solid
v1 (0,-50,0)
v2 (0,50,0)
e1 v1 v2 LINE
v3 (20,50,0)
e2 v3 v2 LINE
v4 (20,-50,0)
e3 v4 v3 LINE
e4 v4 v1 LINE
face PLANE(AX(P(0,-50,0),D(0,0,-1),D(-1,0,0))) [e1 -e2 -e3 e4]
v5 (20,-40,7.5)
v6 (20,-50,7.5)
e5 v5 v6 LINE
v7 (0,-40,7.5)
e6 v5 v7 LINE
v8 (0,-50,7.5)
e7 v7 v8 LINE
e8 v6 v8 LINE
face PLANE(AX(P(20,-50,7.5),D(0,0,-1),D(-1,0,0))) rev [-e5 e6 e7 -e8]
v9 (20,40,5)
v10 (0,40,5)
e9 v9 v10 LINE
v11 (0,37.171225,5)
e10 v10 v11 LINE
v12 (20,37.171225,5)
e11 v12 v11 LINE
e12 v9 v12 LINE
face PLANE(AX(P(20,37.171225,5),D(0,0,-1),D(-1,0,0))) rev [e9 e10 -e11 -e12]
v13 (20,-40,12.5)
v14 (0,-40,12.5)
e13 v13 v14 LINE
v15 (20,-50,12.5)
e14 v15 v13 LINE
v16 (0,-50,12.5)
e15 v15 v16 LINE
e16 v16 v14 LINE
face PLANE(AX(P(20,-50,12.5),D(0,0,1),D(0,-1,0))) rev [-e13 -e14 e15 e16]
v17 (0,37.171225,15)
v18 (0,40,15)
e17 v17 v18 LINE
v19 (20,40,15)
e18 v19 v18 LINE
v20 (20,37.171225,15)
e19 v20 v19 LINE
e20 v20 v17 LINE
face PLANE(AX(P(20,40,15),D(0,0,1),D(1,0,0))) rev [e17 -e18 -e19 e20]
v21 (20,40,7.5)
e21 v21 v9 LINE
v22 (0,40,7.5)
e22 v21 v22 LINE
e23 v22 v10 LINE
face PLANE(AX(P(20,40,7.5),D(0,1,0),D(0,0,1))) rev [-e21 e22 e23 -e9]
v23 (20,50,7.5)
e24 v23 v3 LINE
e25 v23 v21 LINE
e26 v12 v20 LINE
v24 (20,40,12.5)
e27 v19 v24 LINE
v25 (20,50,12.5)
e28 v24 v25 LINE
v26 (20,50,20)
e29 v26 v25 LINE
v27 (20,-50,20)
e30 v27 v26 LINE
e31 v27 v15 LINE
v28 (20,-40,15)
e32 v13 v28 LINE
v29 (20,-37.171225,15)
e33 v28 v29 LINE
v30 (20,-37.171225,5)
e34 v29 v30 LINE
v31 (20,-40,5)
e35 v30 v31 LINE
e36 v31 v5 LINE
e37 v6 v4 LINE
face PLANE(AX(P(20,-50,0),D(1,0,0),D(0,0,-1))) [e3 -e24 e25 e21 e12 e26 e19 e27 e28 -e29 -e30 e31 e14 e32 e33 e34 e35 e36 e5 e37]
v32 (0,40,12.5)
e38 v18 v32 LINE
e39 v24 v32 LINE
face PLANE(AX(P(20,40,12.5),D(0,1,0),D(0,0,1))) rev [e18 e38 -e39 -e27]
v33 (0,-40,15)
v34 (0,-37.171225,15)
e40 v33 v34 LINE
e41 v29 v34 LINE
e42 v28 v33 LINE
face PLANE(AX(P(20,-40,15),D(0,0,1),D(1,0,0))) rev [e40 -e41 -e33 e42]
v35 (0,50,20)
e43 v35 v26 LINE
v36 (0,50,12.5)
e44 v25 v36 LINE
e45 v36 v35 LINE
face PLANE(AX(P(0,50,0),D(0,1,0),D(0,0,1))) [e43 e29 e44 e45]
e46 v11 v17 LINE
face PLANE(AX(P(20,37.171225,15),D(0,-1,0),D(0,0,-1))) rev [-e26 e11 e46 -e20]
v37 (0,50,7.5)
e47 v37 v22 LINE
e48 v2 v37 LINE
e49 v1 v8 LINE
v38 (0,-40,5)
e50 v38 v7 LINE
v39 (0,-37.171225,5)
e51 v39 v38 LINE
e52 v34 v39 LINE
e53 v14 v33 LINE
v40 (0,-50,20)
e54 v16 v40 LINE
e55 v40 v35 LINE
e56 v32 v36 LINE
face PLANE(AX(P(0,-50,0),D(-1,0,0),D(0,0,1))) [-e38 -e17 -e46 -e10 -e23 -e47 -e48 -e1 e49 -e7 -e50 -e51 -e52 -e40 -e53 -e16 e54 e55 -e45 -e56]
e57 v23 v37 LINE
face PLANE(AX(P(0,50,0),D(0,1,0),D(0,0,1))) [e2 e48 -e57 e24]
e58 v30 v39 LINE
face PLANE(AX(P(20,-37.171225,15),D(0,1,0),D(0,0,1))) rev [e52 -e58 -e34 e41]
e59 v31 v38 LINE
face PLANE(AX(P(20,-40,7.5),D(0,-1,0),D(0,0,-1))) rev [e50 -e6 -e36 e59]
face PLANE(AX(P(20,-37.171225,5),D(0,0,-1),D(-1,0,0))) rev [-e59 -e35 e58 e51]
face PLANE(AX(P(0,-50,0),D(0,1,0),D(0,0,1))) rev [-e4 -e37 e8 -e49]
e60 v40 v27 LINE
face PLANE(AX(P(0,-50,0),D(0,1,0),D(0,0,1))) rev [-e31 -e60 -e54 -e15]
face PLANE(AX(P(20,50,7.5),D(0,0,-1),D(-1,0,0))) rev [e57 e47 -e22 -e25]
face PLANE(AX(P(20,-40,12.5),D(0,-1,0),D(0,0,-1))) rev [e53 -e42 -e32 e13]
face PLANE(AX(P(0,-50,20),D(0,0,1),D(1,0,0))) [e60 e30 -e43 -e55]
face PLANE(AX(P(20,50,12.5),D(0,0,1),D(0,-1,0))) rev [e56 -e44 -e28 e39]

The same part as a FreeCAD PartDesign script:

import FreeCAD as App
import Part
import Sketcher
Q = App.Units.Quantity

doc = App.newDocument("Part")
body = doc.addObject("PartDesign::Body", "Body")

# Sketch on XZ plane
sketch1 = body.newObject("Sketcher::SketchObject", "Sketch")
sketch1.AttachmentSupport = (doc.getObject("XZ_Plane"), [""])
sketch1.MapMode = "FlatFace"
sketch1.addGeometry(Part.LineSegment(App.Vector(0, 0, 0), App.Vector(0, 20, 0)), False)
sketch1.addGeometry(Part.LineSegment(App.Vector(0, 20, 0), App.Vector(20, 20, 0)), False)
sketch1.addGeometry(Part.LineSegment(App.Vector(20, 20, 0), App.Vector(20, 0, 0)), False)
sketch1.addGeometry(Part.LineSegment(App.Vector(20, 0, 0), App.Vector(0, 0, 0)), False)
sketch1.addConstraint(Sketcher.Constraint("Coincident", 0, 2, 1, 1))
sketch1.addConstraint(Sketcher.Constraint("Coincident", 1, 2, 2, 1))
sketch1.addConstraint(Sketcher.Constraint("Coincident", 2, 2, 3, 1))
sketch1.addConstraint(Sketcher.Constraint("Coincident", 3, 2, 0, 1))
sketch1.addConstraint(Sketcher.Constraint("Vertical", 0))
sketch1.addConstraint(Sketcher.Constraint("Horizontal", 1))
sketch1.addConstraint(Sketcher.Constraint("Vertical", 2))
sketch1.addConstraint(Sketcher.Constraint("Horizontal", 3))
sketch1.addConstraint(Sketcher.Constraint("Coincident", 3, 2, -1, 1))
sketch1.addConstraint(Sketcher.Constraint("Equal", 3, 0))
sketch1.addConstraint(Sketcher.Constraint("DistanceX", 1, 1, 1, 2, Q("20 mm")))
pad1 = body.newObject("PartDesign::Pad", "Pad")
pad1.Profile = sketch1
pad1.Type = "TwoLengths"
pad1.Length = 50
pad1.Length2 = 50
pad1.Reversed = True

# Sketch on YZ plane
sketch2 = body.newObject("Sketcher::SketchObject", "Sketch001")
sketch2.AttachmentSupport = (doc.getObject("YZ_Plane"), [""])
sketch2.MapMode = "FlatFace"
sketch2.addGeometry(Part.LineSegment(App.Vector(40, 7.5, 0), App.Vector(40, 5, 0)), False)
sketch2.addGeometry(Part.LineSegment(App.Vector(40, 5, 0), App.Vector(37.2, 5, 0)), False)
sketch2.addGeometry(Part.LineSegment(App.Vector(37.2, 5, 0), App.Vector(37.2, 15, 0)), False)
sketch2.addGeometry(Part.LineSegment(App.Vector(37.2, 15, 0), App.Vector(40, 15, 0)), False)
sketch2.addGeometry(Part.LineSegment(App.Vector(40, 15, 0), App.Vector(40, 12.5, 0)), False)
sketch2.addGeometry(Part.LineSegment(App.Vector(40, 12.5, 0), App.Vector(50, 12.5, 0)), False)
sketch2.addGeometry(Part.LineSegment(App.Vector(50, 12.5, 0), App.Vector(50, 7.5, 0)), False)
sketch2.addGeometry(Part.LineSegment(App.Vector(50, 7.5, 0), App.Vector(40, 7.5, 0)), False)
sketch2.addGeometry(Part.LineSegment(App.Vector(-37.2, 5, 0), App.Vector(-40, 5, 0)), False)
sketch2.addGeometry(Part.LineSegment(App.Vector(-40, 5, 0), App.Vector(-40, 7.5, 0)), False)
sketch2.addGeometry(Part.LineSegment(App.Vector(-40, 7.5, 0), App.Vector(-50, 7.5, 0)), False)
sketch2.addGeometry(Part.LineSegment(App.Vector(-50, 7.5, 0), App.Vector(-50, 12.5, 0)), False)
sketch2.addGeometry(Part.LineSegment(App.Vector(-50, 12.5, 0), App.Vector(-40, 12.5, 0)), False)
sketch2.addGeometry(Part.LineSegment(App.Vector(-40, 12.5, 0), App.Vector(-40, 15, 0)), False)
sketch2.addGeometry(Part.LineSegment(App.Vector(-40, 15, 0), App.Vector(-37.2, 15, 0)), False)
sketch2.addGeometry(Part.LineSegment(App.Vector(-37.2, 15, 0), App.Vector(-37.2, 5, 0)), False)
sketch2.addConstraint(Sketcher.Constraint("Coincident", 0, 2, 1, 1))
sketch2.addConstraint(Sketcher.Constraint("Coincident", 1, 2, 2, 1))
sketch2.addConstraint(Sketcher.Constraint("Coincident", 2, 2, 3, 1))
sketch2.addConstraint(Sketcher.Constraint("Coincident", 3, 2, 4, 1))
sketch2.addConstraint(Sketcher.Constraint("Coincident", 4, 2, 5, 1))
sketch2.addConstraint(Sketcher.Constraint("Coincident", 5, 2, 6, 1))
sketch2.addConstraint(Sketcher.Constraint("Coincident", 6, 2, 7, 1))
sketch2.addConstraint(Sketcher.Constraint("Coincident", 7, 2, 0, 1))
sketch2.addConstraint(Sketcher.Constraint("Coincident", 8, 2, 9, 1))
sketch2.addConstraint(Sketcher.Constraint("Coincident", 9, 2, 10, 1))
sketch2.addConstraint(Sketcher.Constraint("Coincident", 10, 2, 11, 1))
sketch2.addConstraint(Sketcher.Constraint("Coincident", 11, 2, 12, 1))
sketch2.addConstraint(Sketcher.Constraint("Coincident", 12, 2, 13, 1))
sketch2.addConstraint(Sketcher.Constraint("Coincident", 13, 2, 14, 1))
sketch2.addConstraint(Sketcher.Constraint("Coincident", 14, 2, 15, 1))
sketch2.addConstraint(Sketcher.Constraint("Coincident", 15, 2, 8, 1))
sketch2.addConstraint(Sketcher.Constraint("Vertical", 0))
sketch2.addConstraint(Sketcher.Constraint("Horizontal", 1))
sketch2.addConstraint(Sketcher.Constraint("Vertical", 2))
sketch2.addConstraint(Sketcher.Constraint("Horizontal", 3))
sketch2.addConstraint(Sketcher.Constraint("Vertical", 4))
sketch2.addConstraint(Sketcher.Constraint("Horizontal", 5))
sketch2.addConstraint(Sketcher.Constraint("Vertical", 6))
sketch2.addConstraint(Sketcher.Constraint("Horizontal", 7))
sketch2.addConstraint(Sketcher.Constraint("Horizontal", 8))
sketch2.addConstraint(Sketcher.Constraint("Vertical", 9))
sketch2.addConstraint(Sketcher.Constraint("Horizontal", 10))
sketch2.addConstraint(Sketcher.Constraint("Vertical", 11))
sketch2.addConstraint(Sketcher.Constraint("Horizontal", 12))
sketch2.addConstraint(Sketcher.Constraint("Vertical", 13))
sketch2.addConstraint(Sketcher.Constraint("Horizontal", 14))
sketch2.addConstraint(Sketcher.Constraint("Vertical", 15))
sketch2.addConstraint(Sketcher.Constraint("Symmetric", 0, 2, 8, 2, -2))
sketch2.addConstraint(Sketcher.Constraint("Symmetric", 6, 2, 10, 2, -2))
sketch2.addConstraint(Sketcher.Constraint("Symmetric", 4, 2, 12, 2, -2))
sketch2.addConstraint(Sketcher.Constraint("Symmetric", 2, 2, 14, 2, -2))
sketch2.addConstraint(Sketcher.Constraint("Vertical", 0, 2, 3, 2))
sketch2.addConstraint(Sketcher.Constraint("Equal", 12, 2))
sketch2.addConstraint(Sketcher.Constraint("Equal", 0, 4))
sketch2.addConstraint(Sketcher.Constraint("DistanceX", 5, 1, 5, 2, Q("10 mm")))
sketch2.addConstraint(Sketcher.Constraint("DistanceY", 6, 2, 6, 1, Q("5 mm")))
sketch2.addConstraint(Sketcher.Constraint("DistanceX", -1, 1, 0, 2, Q("40 mm")))
sketch2.addConstraint(Sketcher.Constraint("DistanceY", -1, 1, 0, 2, Q("5 mm")))
sketch2.addConstraint(Sketcher.Constraint("DistanceX", 1, 2, 1, 1, Q("2.828775 mm")))
pocket1 = body.newObject("PartDesign::Pocket", "Pocket")
pocket1.Profile = sketch2
pocket1.Type = "ThroughAll"
pocket1.Reversed = True

doc.recompute()
